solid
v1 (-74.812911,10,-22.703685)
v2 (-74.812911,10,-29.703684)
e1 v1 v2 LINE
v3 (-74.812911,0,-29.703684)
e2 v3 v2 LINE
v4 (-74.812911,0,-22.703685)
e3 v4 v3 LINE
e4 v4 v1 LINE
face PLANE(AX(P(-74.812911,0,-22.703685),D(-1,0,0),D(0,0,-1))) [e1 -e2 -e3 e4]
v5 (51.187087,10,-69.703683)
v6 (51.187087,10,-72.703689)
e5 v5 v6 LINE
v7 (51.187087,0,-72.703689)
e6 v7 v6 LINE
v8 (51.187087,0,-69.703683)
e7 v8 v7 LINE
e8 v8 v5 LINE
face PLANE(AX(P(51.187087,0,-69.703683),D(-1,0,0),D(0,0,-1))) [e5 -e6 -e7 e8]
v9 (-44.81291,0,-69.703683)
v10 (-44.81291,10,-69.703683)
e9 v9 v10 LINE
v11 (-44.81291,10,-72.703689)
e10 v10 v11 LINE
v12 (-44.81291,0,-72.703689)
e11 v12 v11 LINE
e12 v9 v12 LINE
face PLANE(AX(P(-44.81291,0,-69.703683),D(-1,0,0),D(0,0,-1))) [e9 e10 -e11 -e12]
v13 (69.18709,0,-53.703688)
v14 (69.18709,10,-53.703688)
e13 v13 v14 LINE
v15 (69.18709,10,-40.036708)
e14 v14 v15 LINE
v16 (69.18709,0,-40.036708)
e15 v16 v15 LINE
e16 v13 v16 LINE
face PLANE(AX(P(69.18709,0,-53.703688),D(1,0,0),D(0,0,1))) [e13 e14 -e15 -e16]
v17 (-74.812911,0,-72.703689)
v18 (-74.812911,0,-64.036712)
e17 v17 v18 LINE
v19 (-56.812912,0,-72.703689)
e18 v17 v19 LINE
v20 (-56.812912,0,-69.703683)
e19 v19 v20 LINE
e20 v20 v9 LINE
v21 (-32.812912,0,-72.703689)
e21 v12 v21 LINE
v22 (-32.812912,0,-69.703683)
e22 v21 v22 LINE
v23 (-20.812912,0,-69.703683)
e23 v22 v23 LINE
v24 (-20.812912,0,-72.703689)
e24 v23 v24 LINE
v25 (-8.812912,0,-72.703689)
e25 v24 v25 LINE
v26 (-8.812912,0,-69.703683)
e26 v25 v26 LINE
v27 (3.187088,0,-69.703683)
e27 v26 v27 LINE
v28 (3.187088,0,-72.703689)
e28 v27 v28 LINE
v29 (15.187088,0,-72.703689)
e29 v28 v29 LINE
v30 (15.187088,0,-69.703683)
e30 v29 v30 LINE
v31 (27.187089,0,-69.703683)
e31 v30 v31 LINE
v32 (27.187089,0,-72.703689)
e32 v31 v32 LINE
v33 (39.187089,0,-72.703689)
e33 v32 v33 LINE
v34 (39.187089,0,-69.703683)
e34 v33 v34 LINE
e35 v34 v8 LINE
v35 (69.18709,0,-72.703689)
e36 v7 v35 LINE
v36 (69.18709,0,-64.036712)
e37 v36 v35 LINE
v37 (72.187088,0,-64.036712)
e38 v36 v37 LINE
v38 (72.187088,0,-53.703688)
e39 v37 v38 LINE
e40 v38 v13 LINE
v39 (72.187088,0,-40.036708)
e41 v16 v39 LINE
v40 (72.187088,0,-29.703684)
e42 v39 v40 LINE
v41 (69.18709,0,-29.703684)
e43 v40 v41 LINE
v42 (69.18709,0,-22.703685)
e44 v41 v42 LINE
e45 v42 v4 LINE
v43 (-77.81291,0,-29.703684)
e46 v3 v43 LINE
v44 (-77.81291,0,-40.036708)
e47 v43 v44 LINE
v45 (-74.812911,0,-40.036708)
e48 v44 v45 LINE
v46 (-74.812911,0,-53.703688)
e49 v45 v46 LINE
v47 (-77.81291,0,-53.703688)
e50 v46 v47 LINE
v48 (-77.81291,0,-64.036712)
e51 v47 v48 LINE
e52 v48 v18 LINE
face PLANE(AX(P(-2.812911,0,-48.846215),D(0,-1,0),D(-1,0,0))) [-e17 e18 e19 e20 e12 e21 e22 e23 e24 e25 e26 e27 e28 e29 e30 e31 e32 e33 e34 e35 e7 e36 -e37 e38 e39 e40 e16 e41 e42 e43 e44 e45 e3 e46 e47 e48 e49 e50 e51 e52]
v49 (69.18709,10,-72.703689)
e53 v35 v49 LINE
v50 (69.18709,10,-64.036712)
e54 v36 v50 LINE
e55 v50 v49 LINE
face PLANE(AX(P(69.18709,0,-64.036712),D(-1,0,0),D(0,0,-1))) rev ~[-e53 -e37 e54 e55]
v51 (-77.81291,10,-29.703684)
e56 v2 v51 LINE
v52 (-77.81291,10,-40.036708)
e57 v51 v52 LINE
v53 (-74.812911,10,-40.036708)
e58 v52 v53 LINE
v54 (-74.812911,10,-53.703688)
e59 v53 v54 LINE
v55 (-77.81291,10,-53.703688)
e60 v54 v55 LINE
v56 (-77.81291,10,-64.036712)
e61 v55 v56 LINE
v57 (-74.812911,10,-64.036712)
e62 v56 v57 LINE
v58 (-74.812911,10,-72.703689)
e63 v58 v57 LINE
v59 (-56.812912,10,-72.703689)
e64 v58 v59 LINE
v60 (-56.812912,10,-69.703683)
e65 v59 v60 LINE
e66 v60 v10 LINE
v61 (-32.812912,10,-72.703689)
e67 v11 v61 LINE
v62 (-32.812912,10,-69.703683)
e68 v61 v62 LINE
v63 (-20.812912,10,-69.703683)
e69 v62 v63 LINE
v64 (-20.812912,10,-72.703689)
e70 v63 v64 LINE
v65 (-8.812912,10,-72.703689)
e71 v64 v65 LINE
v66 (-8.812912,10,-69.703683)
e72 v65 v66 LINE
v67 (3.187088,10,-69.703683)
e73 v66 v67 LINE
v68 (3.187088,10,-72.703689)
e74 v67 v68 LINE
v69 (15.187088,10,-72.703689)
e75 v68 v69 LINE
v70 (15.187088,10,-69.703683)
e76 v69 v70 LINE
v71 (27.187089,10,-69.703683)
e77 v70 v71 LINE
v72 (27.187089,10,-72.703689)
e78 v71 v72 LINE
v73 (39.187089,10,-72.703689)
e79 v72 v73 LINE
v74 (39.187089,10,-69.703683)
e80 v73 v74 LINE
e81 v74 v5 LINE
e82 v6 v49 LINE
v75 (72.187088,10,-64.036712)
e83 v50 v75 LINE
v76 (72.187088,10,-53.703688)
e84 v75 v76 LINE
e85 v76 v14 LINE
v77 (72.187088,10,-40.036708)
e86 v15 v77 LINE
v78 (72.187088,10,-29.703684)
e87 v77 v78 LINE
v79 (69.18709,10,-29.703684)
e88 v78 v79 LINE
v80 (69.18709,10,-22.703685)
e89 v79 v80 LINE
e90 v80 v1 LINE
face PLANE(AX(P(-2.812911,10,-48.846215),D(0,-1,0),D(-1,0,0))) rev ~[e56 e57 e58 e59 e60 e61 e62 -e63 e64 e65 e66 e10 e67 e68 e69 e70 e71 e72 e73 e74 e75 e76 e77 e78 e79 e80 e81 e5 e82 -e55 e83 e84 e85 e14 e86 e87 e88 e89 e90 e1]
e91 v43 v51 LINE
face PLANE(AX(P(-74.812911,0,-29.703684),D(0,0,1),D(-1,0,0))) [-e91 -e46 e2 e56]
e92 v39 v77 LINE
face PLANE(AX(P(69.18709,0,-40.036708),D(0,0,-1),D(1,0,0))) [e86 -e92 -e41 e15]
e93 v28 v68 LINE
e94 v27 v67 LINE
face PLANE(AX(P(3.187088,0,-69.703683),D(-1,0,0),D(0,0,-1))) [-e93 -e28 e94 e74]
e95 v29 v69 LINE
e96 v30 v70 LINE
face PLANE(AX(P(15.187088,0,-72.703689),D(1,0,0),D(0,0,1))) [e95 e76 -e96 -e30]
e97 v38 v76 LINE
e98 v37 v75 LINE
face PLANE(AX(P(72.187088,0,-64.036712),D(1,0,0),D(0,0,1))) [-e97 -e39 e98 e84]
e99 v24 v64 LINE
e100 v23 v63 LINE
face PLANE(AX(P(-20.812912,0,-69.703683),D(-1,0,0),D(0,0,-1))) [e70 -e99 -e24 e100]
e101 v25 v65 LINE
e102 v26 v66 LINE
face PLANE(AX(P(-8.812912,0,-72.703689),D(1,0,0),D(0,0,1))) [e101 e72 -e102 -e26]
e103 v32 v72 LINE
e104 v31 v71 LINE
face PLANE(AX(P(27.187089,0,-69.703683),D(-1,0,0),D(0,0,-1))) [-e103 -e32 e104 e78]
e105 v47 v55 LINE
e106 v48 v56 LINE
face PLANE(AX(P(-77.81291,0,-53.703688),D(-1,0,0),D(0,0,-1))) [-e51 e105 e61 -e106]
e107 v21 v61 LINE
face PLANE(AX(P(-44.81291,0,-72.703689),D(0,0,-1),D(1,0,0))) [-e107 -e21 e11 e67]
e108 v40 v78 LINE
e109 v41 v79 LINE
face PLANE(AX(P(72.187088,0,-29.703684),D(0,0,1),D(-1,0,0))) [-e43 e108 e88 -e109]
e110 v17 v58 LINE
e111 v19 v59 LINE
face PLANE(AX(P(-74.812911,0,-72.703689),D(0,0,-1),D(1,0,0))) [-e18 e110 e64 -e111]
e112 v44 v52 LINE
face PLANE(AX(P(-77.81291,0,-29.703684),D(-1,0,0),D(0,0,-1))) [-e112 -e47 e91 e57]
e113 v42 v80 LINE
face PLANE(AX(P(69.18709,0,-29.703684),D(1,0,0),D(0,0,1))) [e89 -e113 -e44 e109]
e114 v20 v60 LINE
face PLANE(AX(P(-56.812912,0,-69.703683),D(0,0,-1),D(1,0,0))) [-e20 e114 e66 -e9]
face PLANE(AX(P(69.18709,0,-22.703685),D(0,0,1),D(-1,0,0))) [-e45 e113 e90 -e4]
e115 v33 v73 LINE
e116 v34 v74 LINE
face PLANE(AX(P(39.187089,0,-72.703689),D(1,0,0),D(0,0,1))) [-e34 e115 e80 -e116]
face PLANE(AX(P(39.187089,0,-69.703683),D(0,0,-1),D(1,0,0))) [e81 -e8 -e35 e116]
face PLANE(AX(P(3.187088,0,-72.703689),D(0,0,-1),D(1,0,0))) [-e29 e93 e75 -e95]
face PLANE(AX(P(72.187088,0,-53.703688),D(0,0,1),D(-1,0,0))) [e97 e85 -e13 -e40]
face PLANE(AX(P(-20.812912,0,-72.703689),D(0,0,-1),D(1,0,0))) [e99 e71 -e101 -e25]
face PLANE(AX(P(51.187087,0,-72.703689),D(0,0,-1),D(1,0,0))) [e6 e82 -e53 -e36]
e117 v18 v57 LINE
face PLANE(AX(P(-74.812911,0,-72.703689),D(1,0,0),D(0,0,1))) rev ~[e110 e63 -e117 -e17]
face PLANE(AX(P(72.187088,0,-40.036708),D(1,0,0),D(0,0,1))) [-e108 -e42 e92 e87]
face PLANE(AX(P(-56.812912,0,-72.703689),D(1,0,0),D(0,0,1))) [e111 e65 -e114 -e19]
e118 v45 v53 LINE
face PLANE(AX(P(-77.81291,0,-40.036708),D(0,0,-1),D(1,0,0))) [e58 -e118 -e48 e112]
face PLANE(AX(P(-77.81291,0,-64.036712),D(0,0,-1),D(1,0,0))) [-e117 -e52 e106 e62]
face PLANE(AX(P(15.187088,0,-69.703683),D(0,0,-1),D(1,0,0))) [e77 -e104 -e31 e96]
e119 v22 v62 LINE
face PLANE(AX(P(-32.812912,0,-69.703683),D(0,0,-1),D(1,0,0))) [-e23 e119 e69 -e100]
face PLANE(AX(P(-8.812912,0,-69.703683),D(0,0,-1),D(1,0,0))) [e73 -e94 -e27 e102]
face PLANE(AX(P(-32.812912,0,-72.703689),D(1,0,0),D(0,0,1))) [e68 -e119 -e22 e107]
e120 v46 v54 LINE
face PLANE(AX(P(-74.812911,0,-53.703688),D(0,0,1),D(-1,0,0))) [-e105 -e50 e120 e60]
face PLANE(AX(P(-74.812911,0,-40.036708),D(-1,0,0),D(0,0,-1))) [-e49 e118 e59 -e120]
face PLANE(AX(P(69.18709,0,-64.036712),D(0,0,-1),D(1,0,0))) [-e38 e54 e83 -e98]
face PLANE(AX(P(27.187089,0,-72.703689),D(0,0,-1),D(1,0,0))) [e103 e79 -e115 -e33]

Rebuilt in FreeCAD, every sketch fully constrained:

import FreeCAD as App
import Part
import Sketcher

V = App.Vector

doc = App.newDocument("Part")
body = doc.addObject("PartDesign::Body", "Body")

sketch1 = doc.addObject("Sketcher::SketchObject", "Sketch")
body.addObject(sketch1)
sketch1.AttachmentSupport = (doc.XZ_Plane, [""])
sketch1.MapMode = "FlatFace"
sketch1.addGeometry([
    Part.LineSegment(V(-20.812912, -69.703683, 0), V(-32.812912, -69.703683, 0)),
    Part.LineSegment(V(-32.812912, -69.703683, 0), V(-32.812912, -72.703689, 0)),
    Part.LineSegment(V(-32.812912, -72.703689, 0), V(-44.81291, -72.703689, 0)),
    Part.LineSegment(V(-44.81291, -72.703689, 0), V(-44.81291, -69.703683, 0)),
    Part.LineSegment(V(-44.81291, -69.703683, 0), V(-56.812912, -69.703683, 0)),
    Part.LineSegment(V(-56.812912, -69.703683, 0), V(-56.812912, -72.703689, 0)),
    Part.LineSegment(V(-56.812912, -72.703689, 0), V(-74.812911, -72.703689, 0)),
    Part.LineSegment(V(-74.812911, -72.703689, 0), V(-74.812911, -64.036712, 0)),
    Part.LineSegment(V(-74.812911, -64.036712, 0), V(-77.81291, -64.036712, 0)),
    Part.LineSegment(V(-77.81291, -64.036712, 0), V(-77.81291, -53.703688, 0)),
    Part.LineSegment(V(-77.81291, -53.703688, 0), V(-74.812911, -53.703688, 0)),
    Part.LineSegment(V(-74.812911, -53.703688, 0), V(-74.812911, -40.036708, 0)),
    Part.LineSegment(V(-74.812911, -40.036708, 0), V(-77.81291, -40.036708, 0)),
    Part.LineSegment(V(-77.81291, -40.036708, 0), V(-77.81291, -29.703684, 0)),
    Part.LineSegment(V(-77.81291, -29.703684, 0), V(-74.812911, -29.703684, 0)),
    Part.LineSegment(V(-74.812911, -29.703684, 0), V(-74.812911, -22.703685, 0)),
    Part.LineSegment(V(-74.812911, -22.703685, 0), V(69.18709, -22.703685, 0)),
    Part.LineSegment(V(69.18709, -22.703685, 0), V(69.18709, -29.703684, 0)),
    Part.LineSegment(V(69.18709, -29.703684, 0), V(72.187088, -29.703684, 0)),
    Part.LineSegment(V(72.187088, -29.703684, 0), V(72.187088, -40.036708, 0)),
    Part.LineSegment(V(72.187088, -40.036708, 0), V(69.18709, -40.036708, 0)),
    Part.LineSegment(V(69.18709, -40.036708, 0), V(69.18709, -53.703688, 0)),
    Part.LineSegment(V(69.18709, -53.703688, 0), V(72.187088, -53.703688, 0)),
    Part.LineSegment(V(72.187088, -53.703688, 0), V(72.187088, -64.036712, 0)),
    Part.LineSegment(V(72.187088, -64.036712, 0), V(69.18709, -64.036712, 0)),
    Part.LineSegment(V(69.18709, -64.036712, 0), V(69.18709, -72.703689, 0)),
    Part.LineSegment(V(69.18709, -72.703689, 0), V(51.187087, -72.703689, 0)),
    Part.LineSegment(V(51.187087, -72.703689, 0), V(51.187087, -69.703683, 0)),
    Part.LineSegment(V(51.187087, -69.703683, 0), V(39.187089, -69.703683, 0)),
    Part.LineSegment(V(39.187089, -69.703683, 0), V(39.187089, -72.703689, 0)),
    Part.LineSegment(V(39.187089, -72.703689, 0), V(27.187089, -72.703689, 0)),
    Part.LineSegment(V(27.187089, -72.703689, 0), V(27.187089, -69.703683, 0)),
    Part.LineSegment(V(27.187089, -69.703683, 0), V(15.187088, -69.703683, 0)),
    Part.LineSegment(V(15.187088, -69.703683, 0), V(15.187088, -72.703689, 0)),
    Part.LineSegment(V(15.187088, -72.703689, 0), V(3.187088, -72.703689, 0)),
    Part.LineSegment(V(3.187088, -72.703689, 0), V(3.187088, -69.703683, 0)),
    Part.LineSegment(V(3.187088, -69.703683, 0), V(-8.812912, -69.703683, 0)),
    Part.LineSegment(V(-8.812912, -69.703683, 0), V(-8.812912, -72.703689, 0)),
    Part.LineSegment(V(-8.812912, -72.703689, 0), V(-20.812912, -72.703689, 0)),
    Part.LineSegment(V(-20.812912, -72.703689, 0), V(-20.812912, -69.703683, 0)),
], False)
sketch1.addConstraint([
    Sketcher.Constraint("Coincident", 0, 2, 1, 1),
    Sketcher.Constraint("Coincident", 1, 2, 2, 1),
    Sketcher.Constraint("Coincident", 2, 2, 3, 1),
    Sketcher.Constraint("Coincident", 3, 2, 4, 1),
    Sketcher.Constraint("Coincident", 4, 2, 5, 1),
    Sketcher.Constraint("Coincident", 5, 2, 6, 1),
    Sketcher.Constraint("Coincident", 6, 2, 7, 1),
    Sketcher.Constraint("Coincident", 7, 2, 8, 1),
    Sketcher.Constraint("Coincident", 8, 2, 9, 1),
    Sketcher.Constraint("Coincident", 9, 2, 10, 1),
    Sketcher.Constraint("Coincident", 10, 2, 11, 1),
    Sketcher.Constraint("Coincident", 11, 2, 12, 1),
    Sketcher.Constraint("Coincident", 12, 2, 13, 1),
    Sketcher.Constraint("Coincident", 13, 2, 14, 1),
    Sketcher.Constraint("Coincident", 14, 2, 15, 1),
    Sketcher.Constraint("Coincident", 15, 2, 16, 1),
    Sketcher.Constraint("Coincident", 16, 2, 17, 1),
    Sketcher.Constraint("Coincident", 17, 2, 18, 1),
    Sketcher.Constraint("Coincident", 18, 2, 19, 1),
    Sketcher.Constraint("Coincident", 19, 2, 20, 1),
    Sketcher.Constraint("Coincident", 20, 2, 21, 1),
    Sketcher.Constraint("Coincident", 21, 2, 22, 1),
    Sketcher.Constraint("Coincident", 22, 2, 23, 1),
    Sketcher.Constraint("Coincident", 23, 2, 24, 1),
    Sketcher.Constraint("Coincident", 24, 2, 25, 1),
    Sketcher.Constraint("Coincident", 25, 2, 26, 1),
    Sketcher.Constraint("Coincident", 26, 2, 27, 1),
    Sketcher.Constraint("Coincident", 27, 2, 28, 1),
    Sketcher.Constraint("Coincident", 28, 2, 29, 1),
    Sketcher.Constraint("Coincident", 29, 2, 30, 1),
    Sketcher.Constraint("Coincident", 30, 2, 31, 1),
    Sketcher.Constraint("Coincident", 31, 2, 32, 1),
    Sketcher.Constraint("Coincident", 32, 2, 33, 1),
    Sketcher.Constraint("Coincident", 33, 2, 34, 1),
    Sketcher.Constraint("Coincident", 34, 2, 35, 1),
    Sketcher.Constraint("Coincident", 35, 2, 36, 1),
    Sketcher.Constraint("Coincident", 36, 2, 37, 1),
    Sketcher.Constraint("Coincident", 37, 2, 38, 1),
    Sketcher.Constraint("Coincident", 38, 2, 39, 1),
    Sketcher.Constraint("Coincident", 39, 2, 0, 1),
    Sketcher.Constraint("Horizontal", 0),
    Sketcher.Constraint("Vertical", 1),
    Sketcher.Constraint("Horizontal", 2),
    Sketcher.Constraint("Vertical", 3),
    Sketcher.Constraint("Horizontal", 4),
    Sketcher.Constraint("Vertical", 5),
    Sketcher.Constraint("Horizontal", 6),
    Sketcher.Constraint("Vertical", 7),
    Sketcher.Constraint("Horizontal", 8),
    Sketcher.Constraint("Vertical", 9),
    Sketcher.Constraint("Horizontal", 10),
    Sketcher.Constraint("Vertical", 11),
    Sketcher.Constraint("Horizontal", 12),
    Sketcher.Constraint("Vertical", 13),
    Sketcher.Constraint("Horizontal", 14),
    Sketcher.Constraint("Vertical", 15),
    Sketcher.Constraint("Horizontal", 16),
    Sketcher.Constraint("Vertical", 17),
    Sketcher.Constraint("Horizontal", 18),
    Sketcher.Constraint("Vertical", 19),
    Sketcher.Constraint("Horizontal", 20),
    Sketcher.Constraint("Vertical", 21),
    Sketcher.Constraint("Horizontal", 22),
    Sketcher.Constraint("Vertical", 23),
    Sketcher.Constraint("Horizontal", 24),
    Sketcher.Constraint("Vertical", 25),
    Sketcher.Constraint("Horizontal", 26),
    Sketcher.Constraint("Vertical", 27),
    Sketcher.Constraint("Horizontal", 28),
    Sketcher.Constraint("Vertical", 29),
    Sketcher.Constraint("Horizontal", 30),
    Sketcher.Constraint("Vertical", 31),
    Sketcher.Constraint("Horizontal", 32),
    Sketcher.Constraint("Vertical", 33),
    Sketcher.Constraint("Horizontal", 34),
    Sketcher.Constraint("Vertical", 35),
    Sketcher.Constraint("Horizontal", 36),
    Sketcher.Constraint("Vertical", 37),
    Sketcher.Constraint("Horizontal", 38),
    Sketcher.Constraint("Vertical", 39),
    Sketcher.Constraint("Horizontal", 0, 2, 3, 2),
    Sketcher.Constraint("Horizontal", 2, 2, 5, 2),
    Sketcher.Constraint("Horizontal", 14, 2, 17, 2),
    Sketcher.Constraint("Horizontal", 12, 2, 19, 2),
    Sketcher.Constraint("Horizontal", 10, 2, 21, 2),
    Sketcher.Constraint("Horizontal", 8, 2, 23, 2),
    Sketcher.Constraint("Horizontal", 6, 2, 25, 2),
    Sketcher.Constraint("Horizontal", 4, 2, 27, 2),
    Sketcher.Constraint("Horizontal", 26, 2, 29, 2),
    Sketcher.Constraint("Horizontal", 28, 2, 31, 2),
    Sketcher.Constraint("Horizontal", 30, 2, 33, 2),
    Sketcher.Constraint("Horizontal", 32, 2, 35, 2),
    Sketcher.Constraint("Horizontal", 34, 2, 37, 2),
    Sketcher.Constraint("Vertical", 7, 2, 10, 2),
    Sketcher.Constraint("Vertical", 9, 2, 12, 2),
    Sketcher.Constraint("Vertical", 11, 2, 14, 2),
    Sketcher.Constraint("Vertical", 17, 2, 20, 2),
    Sketcher.Constraint("Vertical", 19, 2, 22, 2),
    Sketcher.Constraint("Vertical", 21, 2, 24, 2),
    Sketcher.Constraint("Equal", 0, 2),
    Sketcher.Constraint("Equal", 0, 4),
    Sketcher.Constraint("Equal", 14, 18),
    Sketcher.Constraint("Equal", 2, 28),
    Sketcher.Constraint("Equal", 28, 30),
    Sketcher.Constraint("Equal", 30, 32),
    Sketcher.Constraint("Equal", 32, 34),
    Sketcher.Constraint("Equal", 34, 36),
    Sketcher.Constraint("Equal", 36, 38),
    Sketcher.Constraint("Equal", 9, 13),
    Sketcher.Constraint("DistanceX", 0, 2, 0, 1, 12.0),
    Sketcher.Constraint("DistanceX", 6, 2, 6, 1, 17.999999),
    Sketcher.Constraint("DistanceX", 8, 2, 8, 1, 2.999999),
    Sketcher.Constraint("DistanceX", 16, 1, 16, 2, 144.000001),
    Sketcher.Constraint("DistanceY", 15, 1, 15, 2, 6.999999),
    Sketcher.Constraint("DistanceY", 6, 2, 9, 2, 19.000001),
    Sketcher.Constraint("DistanceY", 0, 2, 16, 2, 46.999998),
    Sketcher.Constraint("DistanceY", 11, 1, 11, 2, 13.66698),
    Sketcher.Constraint("DistanceY", 1, 2, 1, 1, 3.000006),
    Sketcher.Constraint("DistanceY", 1, 2, -1, 1, 72.703689),
    Sketcher.Constraint("DistanceX", 2, 2, -1, 1, 44.81291),
])
pad1 = doc.addObject("PartDesign::Pad", "Pad")
body.addObject(pad1)
pad1.Profile = sketch1
pad1.Length = 10
pad1.Reversed = True

doc.recompute()
